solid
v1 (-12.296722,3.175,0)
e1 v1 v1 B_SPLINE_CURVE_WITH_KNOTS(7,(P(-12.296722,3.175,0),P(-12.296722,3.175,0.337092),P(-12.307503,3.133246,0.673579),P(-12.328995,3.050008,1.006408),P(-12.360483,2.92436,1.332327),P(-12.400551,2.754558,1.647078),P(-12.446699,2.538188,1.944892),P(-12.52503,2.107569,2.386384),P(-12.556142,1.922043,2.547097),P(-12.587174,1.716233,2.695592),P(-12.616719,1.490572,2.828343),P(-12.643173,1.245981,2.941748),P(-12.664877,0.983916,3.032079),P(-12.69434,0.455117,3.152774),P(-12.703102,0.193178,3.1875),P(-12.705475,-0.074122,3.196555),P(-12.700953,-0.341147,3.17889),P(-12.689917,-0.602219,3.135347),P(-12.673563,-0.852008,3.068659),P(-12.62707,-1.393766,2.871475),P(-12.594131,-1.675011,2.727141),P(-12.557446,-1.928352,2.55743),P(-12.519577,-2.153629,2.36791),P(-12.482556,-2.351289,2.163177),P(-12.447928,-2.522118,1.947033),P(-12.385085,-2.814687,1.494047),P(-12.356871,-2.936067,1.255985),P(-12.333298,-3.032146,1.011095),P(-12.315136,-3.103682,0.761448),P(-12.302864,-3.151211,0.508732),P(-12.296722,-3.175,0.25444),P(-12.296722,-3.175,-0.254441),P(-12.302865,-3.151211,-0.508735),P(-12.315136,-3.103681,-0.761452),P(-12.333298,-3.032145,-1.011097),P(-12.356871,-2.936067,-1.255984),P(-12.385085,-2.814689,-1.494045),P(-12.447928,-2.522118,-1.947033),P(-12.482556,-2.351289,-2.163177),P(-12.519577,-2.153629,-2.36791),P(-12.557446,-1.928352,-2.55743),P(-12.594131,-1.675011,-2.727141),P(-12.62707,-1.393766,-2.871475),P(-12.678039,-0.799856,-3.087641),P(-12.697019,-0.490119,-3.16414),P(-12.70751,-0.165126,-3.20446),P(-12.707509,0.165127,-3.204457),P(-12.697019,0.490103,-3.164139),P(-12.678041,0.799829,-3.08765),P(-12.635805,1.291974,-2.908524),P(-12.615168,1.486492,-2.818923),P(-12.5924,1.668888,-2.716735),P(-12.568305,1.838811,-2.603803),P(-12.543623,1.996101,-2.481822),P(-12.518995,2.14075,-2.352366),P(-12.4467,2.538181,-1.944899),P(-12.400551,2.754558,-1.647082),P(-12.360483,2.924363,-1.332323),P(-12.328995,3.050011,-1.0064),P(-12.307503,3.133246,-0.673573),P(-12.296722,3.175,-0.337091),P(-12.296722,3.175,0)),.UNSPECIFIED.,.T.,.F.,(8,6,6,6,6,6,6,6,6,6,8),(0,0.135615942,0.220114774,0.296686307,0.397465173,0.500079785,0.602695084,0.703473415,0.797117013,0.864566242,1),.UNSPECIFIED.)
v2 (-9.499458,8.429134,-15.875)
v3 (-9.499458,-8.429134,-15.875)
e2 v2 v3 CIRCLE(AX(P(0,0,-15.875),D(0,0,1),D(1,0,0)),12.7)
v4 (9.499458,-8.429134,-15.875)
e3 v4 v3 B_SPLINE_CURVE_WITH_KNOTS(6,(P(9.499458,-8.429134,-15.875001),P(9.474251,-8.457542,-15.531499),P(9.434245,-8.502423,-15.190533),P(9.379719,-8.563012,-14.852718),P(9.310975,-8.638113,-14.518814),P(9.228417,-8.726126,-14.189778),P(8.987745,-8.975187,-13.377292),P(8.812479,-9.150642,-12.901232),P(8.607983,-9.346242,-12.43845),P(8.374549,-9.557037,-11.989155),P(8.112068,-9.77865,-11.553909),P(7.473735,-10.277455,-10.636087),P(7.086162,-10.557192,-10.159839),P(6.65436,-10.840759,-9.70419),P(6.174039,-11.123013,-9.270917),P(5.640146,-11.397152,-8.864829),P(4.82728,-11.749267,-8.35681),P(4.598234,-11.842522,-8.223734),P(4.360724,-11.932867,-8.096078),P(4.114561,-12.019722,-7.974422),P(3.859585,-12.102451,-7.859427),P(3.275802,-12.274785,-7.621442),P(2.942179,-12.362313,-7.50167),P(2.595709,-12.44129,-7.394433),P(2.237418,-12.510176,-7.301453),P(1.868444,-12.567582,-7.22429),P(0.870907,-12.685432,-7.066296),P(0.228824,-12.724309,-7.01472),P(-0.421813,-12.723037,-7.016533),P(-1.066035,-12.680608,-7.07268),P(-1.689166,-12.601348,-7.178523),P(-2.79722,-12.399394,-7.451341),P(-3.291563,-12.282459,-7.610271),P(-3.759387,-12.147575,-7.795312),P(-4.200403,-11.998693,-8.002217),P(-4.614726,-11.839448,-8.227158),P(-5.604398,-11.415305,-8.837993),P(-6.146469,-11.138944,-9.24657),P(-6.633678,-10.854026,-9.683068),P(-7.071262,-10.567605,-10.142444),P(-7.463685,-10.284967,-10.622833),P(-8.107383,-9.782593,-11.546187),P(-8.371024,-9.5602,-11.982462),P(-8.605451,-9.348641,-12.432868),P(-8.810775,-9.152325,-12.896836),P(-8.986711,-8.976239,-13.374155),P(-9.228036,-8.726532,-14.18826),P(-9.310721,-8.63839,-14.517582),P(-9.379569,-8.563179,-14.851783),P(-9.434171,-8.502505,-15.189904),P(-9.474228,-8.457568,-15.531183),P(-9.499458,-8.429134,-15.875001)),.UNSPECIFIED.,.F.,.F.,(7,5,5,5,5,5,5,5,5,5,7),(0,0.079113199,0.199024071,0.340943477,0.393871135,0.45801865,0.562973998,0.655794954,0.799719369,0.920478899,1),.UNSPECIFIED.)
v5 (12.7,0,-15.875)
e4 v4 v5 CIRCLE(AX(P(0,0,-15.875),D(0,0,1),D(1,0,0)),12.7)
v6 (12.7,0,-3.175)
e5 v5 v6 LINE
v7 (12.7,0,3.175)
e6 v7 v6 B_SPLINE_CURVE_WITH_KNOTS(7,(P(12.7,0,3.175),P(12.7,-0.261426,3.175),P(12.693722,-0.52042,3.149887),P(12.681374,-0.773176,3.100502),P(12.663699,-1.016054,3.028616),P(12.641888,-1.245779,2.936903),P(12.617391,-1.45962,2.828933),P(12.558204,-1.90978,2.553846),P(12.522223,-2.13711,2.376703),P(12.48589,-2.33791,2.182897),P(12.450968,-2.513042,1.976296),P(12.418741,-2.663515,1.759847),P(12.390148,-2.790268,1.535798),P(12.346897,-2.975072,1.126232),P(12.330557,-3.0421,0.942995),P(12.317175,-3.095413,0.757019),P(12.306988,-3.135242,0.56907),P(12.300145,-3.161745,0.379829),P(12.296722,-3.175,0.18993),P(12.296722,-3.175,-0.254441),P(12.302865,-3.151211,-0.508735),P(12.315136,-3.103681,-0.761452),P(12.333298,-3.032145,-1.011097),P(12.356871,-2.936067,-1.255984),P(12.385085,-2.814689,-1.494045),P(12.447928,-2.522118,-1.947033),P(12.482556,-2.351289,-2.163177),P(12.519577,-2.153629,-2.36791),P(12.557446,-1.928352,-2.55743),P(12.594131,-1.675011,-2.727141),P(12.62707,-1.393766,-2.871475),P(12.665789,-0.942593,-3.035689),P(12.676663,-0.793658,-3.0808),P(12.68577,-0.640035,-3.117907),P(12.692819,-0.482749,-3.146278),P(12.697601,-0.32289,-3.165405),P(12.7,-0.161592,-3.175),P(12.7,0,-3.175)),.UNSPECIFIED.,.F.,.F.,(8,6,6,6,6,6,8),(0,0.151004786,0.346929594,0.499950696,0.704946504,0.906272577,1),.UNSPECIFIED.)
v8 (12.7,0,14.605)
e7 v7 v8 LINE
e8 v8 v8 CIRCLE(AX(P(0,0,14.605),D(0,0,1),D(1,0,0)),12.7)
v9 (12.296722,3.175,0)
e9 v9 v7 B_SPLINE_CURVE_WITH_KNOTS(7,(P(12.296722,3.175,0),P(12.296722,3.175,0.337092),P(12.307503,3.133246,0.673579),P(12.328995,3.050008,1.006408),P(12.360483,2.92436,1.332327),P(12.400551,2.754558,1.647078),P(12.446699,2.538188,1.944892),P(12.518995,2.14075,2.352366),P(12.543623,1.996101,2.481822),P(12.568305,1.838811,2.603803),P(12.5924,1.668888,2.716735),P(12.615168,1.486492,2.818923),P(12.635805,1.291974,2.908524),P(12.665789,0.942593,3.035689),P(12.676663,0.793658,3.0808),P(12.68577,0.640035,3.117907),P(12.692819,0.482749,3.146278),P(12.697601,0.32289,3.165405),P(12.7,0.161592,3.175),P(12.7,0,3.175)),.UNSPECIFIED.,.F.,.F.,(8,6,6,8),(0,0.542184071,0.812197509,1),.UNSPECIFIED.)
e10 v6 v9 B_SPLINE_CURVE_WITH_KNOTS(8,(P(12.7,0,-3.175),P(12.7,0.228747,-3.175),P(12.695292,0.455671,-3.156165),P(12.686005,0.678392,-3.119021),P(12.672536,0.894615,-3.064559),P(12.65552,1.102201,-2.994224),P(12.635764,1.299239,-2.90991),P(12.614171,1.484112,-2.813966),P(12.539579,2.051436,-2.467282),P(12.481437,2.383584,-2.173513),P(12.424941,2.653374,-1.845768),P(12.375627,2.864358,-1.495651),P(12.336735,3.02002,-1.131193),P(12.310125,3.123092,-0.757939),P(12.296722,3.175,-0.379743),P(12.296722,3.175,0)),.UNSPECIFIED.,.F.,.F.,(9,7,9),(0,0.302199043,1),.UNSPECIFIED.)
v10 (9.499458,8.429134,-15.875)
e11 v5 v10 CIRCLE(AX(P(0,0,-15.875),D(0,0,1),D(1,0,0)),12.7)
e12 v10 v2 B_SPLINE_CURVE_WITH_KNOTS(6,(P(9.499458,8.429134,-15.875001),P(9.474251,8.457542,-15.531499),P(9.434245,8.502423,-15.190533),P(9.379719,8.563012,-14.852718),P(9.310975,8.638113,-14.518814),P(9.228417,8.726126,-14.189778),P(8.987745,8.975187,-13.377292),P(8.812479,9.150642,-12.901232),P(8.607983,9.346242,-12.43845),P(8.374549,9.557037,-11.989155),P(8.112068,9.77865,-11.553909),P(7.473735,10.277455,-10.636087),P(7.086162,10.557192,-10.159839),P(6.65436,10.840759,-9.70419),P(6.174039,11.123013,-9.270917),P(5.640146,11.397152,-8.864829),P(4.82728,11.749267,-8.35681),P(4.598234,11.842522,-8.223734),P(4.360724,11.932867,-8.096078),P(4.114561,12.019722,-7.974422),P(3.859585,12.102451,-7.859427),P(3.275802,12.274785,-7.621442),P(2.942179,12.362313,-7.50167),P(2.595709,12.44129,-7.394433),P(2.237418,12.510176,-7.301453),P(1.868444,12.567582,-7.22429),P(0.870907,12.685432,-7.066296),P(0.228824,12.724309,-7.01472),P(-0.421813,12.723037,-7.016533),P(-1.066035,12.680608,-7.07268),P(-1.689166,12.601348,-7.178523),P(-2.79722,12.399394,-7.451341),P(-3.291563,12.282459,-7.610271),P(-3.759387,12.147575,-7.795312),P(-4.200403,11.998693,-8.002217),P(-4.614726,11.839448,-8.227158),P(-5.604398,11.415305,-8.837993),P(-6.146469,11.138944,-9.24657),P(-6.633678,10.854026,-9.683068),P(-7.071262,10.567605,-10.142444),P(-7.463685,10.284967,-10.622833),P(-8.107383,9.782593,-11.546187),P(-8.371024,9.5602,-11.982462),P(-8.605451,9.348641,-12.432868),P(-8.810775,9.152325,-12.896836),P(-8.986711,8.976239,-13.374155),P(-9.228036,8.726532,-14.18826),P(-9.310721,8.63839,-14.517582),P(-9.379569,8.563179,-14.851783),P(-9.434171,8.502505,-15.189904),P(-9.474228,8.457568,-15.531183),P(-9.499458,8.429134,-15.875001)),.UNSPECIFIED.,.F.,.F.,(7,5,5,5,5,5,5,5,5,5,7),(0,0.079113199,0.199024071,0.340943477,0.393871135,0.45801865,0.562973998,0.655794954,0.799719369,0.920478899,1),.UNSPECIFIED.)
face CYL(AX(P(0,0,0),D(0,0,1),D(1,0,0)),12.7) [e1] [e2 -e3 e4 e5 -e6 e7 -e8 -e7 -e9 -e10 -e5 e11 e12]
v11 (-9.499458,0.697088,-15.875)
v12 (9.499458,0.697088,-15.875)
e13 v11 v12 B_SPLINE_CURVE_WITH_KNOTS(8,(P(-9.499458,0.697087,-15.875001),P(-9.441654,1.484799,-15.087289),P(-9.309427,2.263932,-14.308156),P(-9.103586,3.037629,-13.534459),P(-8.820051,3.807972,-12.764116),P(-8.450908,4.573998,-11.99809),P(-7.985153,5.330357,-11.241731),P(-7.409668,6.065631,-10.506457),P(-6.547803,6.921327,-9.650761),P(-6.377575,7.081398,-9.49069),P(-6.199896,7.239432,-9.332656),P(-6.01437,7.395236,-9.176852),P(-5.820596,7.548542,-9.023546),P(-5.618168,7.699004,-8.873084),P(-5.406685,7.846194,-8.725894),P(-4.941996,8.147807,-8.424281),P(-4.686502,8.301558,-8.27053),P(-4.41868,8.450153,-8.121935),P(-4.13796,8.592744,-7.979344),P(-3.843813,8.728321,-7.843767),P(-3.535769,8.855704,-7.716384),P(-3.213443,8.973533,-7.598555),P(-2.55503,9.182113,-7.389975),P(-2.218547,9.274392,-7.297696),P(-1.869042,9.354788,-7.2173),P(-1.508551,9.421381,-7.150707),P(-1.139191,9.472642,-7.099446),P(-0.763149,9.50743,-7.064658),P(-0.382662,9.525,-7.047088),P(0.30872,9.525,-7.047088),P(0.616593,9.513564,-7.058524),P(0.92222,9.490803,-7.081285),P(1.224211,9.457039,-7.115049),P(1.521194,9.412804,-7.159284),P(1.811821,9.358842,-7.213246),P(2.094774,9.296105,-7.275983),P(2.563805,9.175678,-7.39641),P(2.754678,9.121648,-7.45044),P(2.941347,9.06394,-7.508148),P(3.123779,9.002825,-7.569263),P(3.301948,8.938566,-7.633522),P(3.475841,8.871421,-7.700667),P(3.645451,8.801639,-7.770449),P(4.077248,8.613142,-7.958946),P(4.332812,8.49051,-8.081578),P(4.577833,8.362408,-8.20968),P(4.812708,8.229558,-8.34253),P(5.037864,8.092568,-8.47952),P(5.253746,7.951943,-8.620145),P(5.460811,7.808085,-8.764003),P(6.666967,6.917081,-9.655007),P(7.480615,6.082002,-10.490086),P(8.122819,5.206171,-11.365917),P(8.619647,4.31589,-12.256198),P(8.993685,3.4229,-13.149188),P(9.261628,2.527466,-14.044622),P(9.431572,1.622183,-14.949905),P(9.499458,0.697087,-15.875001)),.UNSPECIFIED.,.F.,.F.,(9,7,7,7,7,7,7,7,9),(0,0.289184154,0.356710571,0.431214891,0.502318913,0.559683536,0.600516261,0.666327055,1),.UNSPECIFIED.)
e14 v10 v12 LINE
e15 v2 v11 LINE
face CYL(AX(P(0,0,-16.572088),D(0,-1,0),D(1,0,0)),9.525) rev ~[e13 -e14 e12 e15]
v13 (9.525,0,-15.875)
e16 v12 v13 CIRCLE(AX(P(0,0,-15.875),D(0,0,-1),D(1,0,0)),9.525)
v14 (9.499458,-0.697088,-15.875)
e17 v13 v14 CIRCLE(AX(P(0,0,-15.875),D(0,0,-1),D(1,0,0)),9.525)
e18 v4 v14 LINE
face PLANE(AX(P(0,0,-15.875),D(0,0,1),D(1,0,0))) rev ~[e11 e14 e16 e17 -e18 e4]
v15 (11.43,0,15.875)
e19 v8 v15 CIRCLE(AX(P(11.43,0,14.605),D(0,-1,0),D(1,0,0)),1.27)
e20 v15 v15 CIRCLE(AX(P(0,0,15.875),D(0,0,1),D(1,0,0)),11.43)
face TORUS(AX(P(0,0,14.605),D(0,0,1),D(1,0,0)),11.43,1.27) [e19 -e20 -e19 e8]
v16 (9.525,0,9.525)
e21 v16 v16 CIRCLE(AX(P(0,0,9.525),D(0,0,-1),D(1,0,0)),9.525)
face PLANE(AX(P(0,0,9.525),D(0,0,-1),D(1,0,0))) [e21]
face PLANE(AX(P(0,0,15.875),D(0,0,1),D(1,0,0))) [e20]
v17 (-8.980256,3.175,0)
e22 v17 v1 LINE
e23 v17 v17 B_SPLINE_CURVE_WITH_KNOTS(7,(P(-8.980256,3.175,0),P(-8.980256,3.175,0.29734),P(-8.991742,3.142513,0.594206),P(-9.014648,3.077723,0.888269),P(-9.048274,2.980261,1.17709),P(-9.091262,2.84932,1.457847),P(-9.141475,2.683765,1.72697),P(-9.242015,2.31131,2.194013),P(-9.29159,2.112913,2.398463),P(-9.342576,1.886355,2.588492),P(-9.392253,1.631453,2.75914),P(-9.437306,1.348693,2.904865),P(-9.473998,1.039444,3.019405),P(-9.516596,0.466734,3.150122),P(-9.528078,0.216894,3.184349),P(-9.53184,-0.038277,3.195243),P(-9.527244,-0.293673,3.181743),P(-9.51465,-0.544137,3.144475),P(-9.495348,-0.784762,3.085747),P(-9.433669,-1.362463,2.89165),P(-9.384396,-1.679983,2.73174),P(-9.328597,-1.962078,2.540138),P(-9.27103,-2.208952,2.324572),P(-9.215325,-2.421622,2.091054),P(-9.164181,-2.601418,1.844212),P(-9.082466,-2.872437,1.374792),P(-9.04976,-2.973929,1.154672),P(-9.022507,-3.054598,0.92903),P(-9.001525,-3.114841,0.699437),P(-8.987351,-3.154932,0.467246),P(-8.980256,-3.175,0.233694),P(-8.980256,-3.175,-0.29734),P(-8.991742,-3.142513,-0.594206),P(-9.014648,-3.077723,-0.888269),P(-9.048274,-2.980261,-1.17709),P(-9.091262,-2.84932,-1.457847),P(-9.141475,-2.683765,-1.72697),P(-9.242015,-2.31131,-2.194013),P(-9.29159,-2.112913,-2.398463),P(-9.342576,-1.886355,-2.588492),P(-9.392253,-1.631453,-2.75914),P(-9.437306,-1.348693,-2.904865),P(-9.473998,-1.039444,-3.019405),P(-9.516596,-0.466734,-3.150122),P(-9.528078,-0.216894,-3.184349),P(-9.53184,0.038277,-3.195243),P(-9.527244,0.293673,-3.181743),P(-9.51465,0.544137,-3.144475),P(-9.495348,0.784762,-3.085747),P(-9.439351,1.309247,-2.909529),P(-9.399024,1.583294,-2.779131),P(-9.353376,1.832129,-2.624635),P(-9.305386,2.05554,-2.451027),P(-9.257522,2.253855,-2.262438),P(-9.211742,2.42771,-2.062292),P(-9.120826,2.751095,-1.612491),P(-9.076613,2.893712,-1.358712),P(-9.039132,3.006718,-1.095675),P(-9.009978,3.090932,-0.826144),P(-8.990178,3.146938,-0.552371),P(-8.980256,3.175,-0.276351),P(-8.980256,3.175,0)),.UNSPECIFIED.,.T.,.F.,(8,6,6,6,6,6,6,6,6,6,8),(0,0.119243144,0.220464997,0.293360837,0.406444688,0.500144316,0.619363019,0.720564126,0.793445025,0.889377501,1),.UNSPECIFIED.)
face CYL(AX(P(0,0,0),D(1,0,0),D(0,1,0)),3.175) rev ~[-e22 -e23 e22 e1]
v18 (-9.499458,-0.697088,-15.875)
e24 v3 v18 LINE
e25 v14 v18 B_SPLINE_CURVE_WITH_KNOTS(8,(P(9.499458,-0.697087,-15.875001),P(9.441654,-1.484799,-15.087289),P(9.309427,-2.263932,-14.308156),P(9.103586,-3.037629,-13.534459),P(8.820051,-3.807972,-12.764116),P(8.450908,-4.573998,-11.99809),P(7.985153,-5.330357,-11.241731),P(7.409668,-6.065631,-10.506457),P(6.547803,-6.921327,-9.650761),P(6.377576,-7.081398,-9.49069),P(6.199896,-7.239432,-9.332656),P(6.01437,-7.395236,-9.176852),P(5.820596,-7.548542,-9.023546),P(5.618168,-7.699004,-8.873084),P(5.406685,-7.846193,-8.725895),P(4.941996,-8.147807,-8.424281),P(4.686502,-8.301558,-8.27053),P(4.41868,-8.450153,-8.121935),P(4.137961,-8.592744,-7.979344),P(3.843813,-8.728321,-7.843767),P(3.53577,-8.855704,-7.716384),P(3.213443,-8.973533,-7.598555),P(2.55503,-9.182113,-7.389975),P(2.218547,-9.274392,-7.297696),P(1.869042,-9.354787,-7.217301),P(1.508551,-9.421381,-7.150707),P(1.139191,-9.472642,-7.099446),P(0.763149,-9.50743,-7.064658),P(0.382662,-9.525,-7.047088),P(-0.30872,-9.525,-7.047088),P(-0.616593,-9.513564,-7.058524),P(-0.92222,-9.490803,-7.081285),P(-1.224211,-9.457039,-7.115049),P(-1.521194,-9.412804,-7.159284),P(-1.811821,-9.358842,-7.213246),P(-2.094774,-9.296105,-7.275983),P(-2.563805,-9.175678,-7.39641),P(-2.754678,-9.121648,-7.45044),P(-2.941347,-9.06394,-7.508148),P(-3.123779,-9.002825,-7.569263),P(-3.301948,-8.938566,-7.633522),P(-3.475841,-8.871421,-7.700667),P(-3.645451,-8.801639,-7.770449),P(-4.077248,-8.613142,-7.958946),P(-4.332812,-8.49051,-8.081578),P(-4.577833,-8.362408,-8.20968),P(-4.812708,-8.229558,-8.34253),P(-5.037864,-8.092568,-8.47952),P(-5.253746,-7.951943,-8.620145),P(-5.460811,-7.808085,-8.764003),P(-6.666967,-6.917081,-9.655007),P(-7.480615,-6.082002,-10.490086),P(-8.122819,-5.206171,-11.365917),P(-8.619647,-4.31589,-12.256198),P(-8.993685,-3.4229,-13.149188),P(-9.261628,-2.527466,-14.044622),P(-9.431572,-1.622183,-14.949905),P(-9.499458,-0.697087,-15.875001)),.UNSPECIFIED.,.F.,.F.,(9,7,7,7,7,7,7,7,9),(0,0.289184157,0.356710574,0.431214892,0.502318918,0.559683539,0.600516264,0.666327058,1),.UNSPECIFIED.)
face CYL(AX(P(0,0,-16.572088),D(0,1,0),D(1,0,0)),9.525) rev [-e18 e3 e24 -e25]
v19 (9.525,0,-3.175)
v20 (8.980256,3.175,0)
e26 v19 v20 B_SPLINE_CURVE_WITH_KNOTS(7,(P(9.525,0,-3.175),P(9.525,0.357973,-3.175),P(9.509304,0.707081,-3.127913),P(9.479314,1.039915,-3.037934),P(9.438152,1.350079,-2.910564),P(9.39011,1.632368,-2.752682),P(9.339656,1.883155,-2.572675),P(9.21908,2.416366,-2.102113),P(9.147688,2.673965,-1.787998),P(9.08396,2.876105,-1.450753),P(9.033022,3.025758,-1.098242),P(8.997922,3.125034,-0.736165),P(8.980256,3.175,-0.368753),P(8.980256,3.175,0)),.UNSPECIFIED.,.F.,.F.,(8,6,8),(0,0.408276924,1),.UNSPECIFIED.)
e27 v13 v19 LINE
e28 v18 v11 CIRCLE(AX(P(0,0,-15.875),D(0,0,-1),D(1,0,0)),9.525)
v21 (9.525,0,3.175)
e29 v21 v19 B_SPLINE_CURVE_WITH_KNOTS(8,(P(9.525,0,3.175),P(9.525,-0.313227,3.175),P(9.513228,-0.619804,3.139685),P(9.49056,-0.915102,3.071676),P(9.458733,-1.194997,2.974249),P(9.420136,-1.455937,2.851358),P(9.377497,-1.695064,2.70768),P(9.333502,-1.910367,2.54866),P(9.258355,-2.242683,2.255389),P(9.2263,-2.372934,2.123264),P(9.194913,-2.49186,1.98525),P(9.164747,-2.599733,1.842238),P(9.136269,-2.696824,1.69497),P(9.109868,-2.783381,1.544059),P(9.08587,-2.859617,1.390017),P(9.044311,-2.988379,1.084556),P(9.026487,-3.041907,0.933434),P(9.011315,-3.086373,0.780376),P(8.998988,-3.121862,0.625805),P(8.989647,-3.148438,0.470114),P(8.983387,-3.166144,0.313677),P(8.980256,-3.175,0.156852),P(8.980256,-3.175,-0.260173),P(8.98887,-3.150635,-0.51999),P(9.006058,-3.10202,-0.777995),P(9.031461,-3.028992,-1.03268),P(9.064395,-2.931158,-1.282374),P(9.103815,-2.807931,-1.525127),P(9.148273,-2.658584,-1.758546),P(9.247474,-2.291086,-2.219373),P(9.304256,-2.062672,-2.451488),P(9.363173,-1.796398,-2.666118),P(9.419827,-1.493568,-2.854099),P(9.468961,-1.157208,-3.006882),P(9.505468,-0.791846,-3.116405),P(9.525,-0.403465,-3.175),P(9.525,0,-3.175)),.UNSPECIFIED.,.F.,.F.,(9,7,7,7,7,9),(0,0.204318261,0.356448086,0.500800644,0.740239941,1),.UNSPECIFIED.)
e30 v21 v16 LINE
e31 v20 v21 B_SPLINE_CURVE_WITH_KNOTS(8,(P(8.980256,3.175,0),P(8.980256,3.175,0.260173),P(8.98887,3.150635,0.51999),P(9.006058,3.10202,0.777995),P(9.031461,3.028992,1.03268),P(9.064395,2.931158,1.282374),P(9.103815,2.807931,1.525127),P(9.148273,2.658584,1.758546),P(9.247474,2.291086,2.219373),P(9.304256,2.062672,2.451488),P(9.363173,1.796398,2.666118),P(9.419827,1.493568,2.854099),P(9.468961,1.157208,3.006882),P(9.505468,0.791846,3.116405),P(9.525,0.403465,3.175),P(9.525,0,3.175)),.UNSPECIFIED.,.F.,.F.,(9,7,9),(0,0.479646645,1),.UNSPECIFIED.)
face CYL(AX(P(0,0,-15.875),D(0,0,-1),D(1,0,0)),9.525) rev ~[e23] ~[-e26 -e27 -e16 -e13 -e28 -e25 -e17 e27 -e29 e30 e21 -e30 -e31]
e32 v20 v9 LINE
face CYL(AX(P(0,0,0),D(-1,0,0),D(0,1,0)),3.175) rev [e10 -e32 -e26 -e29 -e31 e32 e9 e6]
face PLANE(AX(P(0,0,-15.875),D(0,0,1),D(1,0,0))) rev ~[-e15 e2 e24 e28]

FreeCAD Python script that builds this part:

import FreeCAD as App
import Part
import Sketcher
Q = App.Units.Quantity


def edges_at(feature, points):
    """Names of the edges that pass closest to the given points."""
    edges = feature.Shape.Edges
    near = lambda p: min(range(len(edges)), key=lambda i: edges[i].distToShape(Part.Vertex(*p))[0])
    return sorted({f"Edge{near(p) + 1}" for p in points})

doc = App.newDocument("Part")
body = doc.addObject("PartDesign::Body", "Body")

# Sketch on XY plane
sketch1 = body.newObject("Sketcher::SketchObject", "Sketch")
sketch1.AttachmentSupport = (doc.getObject("XY_Plane"), [""])
sketch1.MapMode = "FlatFace"
sketch1.addGeometry(Part.Circle(App.Vector(0, 0, 0), App.Vector(0, 0, 1), 13), False)
sketch1.addConstraint([
    Sketcher.Constraint("Coincident", 0, 3, -1, 1),
    Sketcher.Constraint("Diameter", 0, Q("1 in")),
])
pad1 = body.newObject("PartDesign::Pad", "Pad")
pad1.Profile = sketch1
pad1.Type = "TwoLengths"
pad1.Length = Q("0.625 in")
pad1.Length2 = Q("0.625 in")

# Sketch on XY plane
sketch2 = body.newObject("Sketcher::SketchObject", "Sketch001")
sketch2.AttachmentSupport = (doc.getObject("XY_Plane"), [""])
sketch2.MapMode = "FlatFace"
sketch2.AttachmentOffset = App.Placement(App.Vector(0, 0, -0.625 * 25.4), App.Rotation())
sketch2.addGeometry(Part.Circle(App.Vector(0, 0, 0), App.Vector(0, 0, 1), 10), False)
sketch2.addConstraint([
    Sketcher.Constraint("Coincident", 0, 3, -1, 1),
    Sketcher.Constraint("Diameter", 0, Q("0.75 in")),
])
pocket1 = body.newObject("PartDesign::Pocket", "Pocket")
pocket1.Profile = sketch2
pocket1.Length = Q("1 in")
pocket1.Reversed = True
doc.recompute()

fillet = body.newObject("PartDesign::Fillet", "Fillet")
fillet.Base = (pocket1, edges_at(pocket1, [(-12.7, 0, 15.875)]))
fillet.Radius = Q("0.05 in")

# Sketch on XZ plane
sketch3 = body.newObject("Sketcher::SketchObject", "Sketch002")
sketch3.AttachmentSupport = (doc.getObject("XZ_Plane"), [""])
sketch3.MapMode = "FlatFace"
sketch3.addGeometry(Part.Circle(App.Vector(0, -17, 0), App.Vector(0, 0, 1), 10), False)
sketch3.addConstraint([
    Sketcher.Constraint("PointOnObject", 0, 3, -2),
    Sketcher.Constraint("Diameter", 0, Q("0.75 in")),
    Sketcher.Constraint("DistanceY", 0, 3, -1, 1, 16.572088),
])
pocket2 = body.newObject("PartDesign::Pocket", "Pocket001")
pocket2.Profile = sketch3
pocket2.Type = "ThroughAll"
pocket2.Midplane = True

# Sketch on YZ plane
sketch4 = body.newObject("Sketcher::SketchObject", "Sketch003")
sketch4.AttachmentSupport = (doc.getObject("YZ_Plane"), [""])
sketch4.MapMode = "FlatFace"
sketch4.addGeometry(Part.Circle(App.Vector(0, 0, 0), App.Vector(0, 0, 1), 3.2), False)
sketch4.addConstraint([
    Sketcher.Constraint("Coincident", 0, 3, -1, 1),
    Sketcher.Constraint("Diameter", 0, Q("0.25 in")),
])
pocket3 = body.newObject("PartDesign::Pocket", "Pocket002")
pocket3.Profile = sketch4
pocket3.Type = "ThroughAll"
pocket3.Midplane = True

doc.recompute()
